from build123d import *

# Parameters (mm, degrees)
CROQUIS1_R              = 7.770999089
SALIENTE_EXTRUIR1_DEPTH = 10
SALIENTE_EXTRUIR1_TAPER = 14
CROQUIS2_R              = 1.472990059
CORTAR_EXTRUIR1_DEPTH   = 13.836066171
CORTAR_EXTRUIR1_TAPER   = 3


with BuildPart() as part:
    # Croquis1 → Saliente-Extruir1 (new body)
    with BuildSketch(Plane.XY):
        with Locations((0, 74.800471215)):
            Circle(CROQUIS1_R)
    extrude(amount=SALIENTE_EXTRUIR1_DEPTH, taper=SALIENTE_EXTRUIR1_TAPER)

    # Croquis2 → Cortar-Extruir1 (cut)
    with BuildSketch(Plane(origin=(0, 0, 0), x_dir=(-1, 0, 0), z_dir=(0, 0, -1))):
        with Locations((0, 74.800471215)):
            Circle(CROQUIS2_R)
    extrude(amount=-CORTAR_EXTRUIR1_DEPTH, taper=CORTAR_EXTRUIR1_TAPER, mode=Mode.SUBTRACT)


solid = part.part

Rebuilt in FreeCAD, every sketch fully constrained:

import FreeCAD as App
import Part
import Sketcher
from FreeCAD import Vector

doc = App.newDocument("Part")
body = doc.addObject("PartDesign::Body", "Body")

# Sketch on XY plane
sketch1 = doc.addObject("Sketcher::SketchObject", "Sketch")
body.addObject(sketch1)
sketch1.AttachmentSupport = (doc.XY_Plane, [""])
sketch1.MapMode = "FlatFace"
sketch1.addGeometry(Part.Circle(Vector(0, 75, 0), Vector(0, 0, 1), 8), False)
sketch1.addConstraint([
    Sketcher.Constraint("PointOnObject", 0, 3, -2),
    Sketcher.Constraint("Diameter", 0, 15.541998),
    Sketcher.Constraint("DistanceY", -1, 1, 0, 3, 74.800471),
])
pad1 = doc.addObject("PartDesign::Pad", "Pad")
body.addObject(pad1)
pad1.Profile = sketch1
pad1.Length = 10
pad1.TaperAngle = -14

# Sketch on XY plane
sketch2 = doc.addObject("Sketcher::SketchObject", "Sketch001")
body.addObject(sketch2)
sketch2.AttachmentSupport = (doc.XY_Plane, [""])
sketch2.MapMode = "FlatFace"
sketch2.addGeometry(Part.Circle(Vector(0, 74.8, 0), Vector(0, 0, 1), 1.5), False)
sketch2.addConstraint([
    Sketcher.Constraint("PointOnObject", 0, 3, -2),
    Sketcher.Constraint("Diameter", 0, 2.94598),
    Sketcher.Constraint("DistanceY", -1, 1, 0, 3, 74.800471),
])
pocket1 = doc.addObject("PartDesign::Pocket", "Pocket")
body.addObject(pocket1)
pocket1.Profile = sketch2
pocket1.Length = 13.836066
pocket1.Reversed = True
pocket1.TaperAngle = -3

doc.recompute()
